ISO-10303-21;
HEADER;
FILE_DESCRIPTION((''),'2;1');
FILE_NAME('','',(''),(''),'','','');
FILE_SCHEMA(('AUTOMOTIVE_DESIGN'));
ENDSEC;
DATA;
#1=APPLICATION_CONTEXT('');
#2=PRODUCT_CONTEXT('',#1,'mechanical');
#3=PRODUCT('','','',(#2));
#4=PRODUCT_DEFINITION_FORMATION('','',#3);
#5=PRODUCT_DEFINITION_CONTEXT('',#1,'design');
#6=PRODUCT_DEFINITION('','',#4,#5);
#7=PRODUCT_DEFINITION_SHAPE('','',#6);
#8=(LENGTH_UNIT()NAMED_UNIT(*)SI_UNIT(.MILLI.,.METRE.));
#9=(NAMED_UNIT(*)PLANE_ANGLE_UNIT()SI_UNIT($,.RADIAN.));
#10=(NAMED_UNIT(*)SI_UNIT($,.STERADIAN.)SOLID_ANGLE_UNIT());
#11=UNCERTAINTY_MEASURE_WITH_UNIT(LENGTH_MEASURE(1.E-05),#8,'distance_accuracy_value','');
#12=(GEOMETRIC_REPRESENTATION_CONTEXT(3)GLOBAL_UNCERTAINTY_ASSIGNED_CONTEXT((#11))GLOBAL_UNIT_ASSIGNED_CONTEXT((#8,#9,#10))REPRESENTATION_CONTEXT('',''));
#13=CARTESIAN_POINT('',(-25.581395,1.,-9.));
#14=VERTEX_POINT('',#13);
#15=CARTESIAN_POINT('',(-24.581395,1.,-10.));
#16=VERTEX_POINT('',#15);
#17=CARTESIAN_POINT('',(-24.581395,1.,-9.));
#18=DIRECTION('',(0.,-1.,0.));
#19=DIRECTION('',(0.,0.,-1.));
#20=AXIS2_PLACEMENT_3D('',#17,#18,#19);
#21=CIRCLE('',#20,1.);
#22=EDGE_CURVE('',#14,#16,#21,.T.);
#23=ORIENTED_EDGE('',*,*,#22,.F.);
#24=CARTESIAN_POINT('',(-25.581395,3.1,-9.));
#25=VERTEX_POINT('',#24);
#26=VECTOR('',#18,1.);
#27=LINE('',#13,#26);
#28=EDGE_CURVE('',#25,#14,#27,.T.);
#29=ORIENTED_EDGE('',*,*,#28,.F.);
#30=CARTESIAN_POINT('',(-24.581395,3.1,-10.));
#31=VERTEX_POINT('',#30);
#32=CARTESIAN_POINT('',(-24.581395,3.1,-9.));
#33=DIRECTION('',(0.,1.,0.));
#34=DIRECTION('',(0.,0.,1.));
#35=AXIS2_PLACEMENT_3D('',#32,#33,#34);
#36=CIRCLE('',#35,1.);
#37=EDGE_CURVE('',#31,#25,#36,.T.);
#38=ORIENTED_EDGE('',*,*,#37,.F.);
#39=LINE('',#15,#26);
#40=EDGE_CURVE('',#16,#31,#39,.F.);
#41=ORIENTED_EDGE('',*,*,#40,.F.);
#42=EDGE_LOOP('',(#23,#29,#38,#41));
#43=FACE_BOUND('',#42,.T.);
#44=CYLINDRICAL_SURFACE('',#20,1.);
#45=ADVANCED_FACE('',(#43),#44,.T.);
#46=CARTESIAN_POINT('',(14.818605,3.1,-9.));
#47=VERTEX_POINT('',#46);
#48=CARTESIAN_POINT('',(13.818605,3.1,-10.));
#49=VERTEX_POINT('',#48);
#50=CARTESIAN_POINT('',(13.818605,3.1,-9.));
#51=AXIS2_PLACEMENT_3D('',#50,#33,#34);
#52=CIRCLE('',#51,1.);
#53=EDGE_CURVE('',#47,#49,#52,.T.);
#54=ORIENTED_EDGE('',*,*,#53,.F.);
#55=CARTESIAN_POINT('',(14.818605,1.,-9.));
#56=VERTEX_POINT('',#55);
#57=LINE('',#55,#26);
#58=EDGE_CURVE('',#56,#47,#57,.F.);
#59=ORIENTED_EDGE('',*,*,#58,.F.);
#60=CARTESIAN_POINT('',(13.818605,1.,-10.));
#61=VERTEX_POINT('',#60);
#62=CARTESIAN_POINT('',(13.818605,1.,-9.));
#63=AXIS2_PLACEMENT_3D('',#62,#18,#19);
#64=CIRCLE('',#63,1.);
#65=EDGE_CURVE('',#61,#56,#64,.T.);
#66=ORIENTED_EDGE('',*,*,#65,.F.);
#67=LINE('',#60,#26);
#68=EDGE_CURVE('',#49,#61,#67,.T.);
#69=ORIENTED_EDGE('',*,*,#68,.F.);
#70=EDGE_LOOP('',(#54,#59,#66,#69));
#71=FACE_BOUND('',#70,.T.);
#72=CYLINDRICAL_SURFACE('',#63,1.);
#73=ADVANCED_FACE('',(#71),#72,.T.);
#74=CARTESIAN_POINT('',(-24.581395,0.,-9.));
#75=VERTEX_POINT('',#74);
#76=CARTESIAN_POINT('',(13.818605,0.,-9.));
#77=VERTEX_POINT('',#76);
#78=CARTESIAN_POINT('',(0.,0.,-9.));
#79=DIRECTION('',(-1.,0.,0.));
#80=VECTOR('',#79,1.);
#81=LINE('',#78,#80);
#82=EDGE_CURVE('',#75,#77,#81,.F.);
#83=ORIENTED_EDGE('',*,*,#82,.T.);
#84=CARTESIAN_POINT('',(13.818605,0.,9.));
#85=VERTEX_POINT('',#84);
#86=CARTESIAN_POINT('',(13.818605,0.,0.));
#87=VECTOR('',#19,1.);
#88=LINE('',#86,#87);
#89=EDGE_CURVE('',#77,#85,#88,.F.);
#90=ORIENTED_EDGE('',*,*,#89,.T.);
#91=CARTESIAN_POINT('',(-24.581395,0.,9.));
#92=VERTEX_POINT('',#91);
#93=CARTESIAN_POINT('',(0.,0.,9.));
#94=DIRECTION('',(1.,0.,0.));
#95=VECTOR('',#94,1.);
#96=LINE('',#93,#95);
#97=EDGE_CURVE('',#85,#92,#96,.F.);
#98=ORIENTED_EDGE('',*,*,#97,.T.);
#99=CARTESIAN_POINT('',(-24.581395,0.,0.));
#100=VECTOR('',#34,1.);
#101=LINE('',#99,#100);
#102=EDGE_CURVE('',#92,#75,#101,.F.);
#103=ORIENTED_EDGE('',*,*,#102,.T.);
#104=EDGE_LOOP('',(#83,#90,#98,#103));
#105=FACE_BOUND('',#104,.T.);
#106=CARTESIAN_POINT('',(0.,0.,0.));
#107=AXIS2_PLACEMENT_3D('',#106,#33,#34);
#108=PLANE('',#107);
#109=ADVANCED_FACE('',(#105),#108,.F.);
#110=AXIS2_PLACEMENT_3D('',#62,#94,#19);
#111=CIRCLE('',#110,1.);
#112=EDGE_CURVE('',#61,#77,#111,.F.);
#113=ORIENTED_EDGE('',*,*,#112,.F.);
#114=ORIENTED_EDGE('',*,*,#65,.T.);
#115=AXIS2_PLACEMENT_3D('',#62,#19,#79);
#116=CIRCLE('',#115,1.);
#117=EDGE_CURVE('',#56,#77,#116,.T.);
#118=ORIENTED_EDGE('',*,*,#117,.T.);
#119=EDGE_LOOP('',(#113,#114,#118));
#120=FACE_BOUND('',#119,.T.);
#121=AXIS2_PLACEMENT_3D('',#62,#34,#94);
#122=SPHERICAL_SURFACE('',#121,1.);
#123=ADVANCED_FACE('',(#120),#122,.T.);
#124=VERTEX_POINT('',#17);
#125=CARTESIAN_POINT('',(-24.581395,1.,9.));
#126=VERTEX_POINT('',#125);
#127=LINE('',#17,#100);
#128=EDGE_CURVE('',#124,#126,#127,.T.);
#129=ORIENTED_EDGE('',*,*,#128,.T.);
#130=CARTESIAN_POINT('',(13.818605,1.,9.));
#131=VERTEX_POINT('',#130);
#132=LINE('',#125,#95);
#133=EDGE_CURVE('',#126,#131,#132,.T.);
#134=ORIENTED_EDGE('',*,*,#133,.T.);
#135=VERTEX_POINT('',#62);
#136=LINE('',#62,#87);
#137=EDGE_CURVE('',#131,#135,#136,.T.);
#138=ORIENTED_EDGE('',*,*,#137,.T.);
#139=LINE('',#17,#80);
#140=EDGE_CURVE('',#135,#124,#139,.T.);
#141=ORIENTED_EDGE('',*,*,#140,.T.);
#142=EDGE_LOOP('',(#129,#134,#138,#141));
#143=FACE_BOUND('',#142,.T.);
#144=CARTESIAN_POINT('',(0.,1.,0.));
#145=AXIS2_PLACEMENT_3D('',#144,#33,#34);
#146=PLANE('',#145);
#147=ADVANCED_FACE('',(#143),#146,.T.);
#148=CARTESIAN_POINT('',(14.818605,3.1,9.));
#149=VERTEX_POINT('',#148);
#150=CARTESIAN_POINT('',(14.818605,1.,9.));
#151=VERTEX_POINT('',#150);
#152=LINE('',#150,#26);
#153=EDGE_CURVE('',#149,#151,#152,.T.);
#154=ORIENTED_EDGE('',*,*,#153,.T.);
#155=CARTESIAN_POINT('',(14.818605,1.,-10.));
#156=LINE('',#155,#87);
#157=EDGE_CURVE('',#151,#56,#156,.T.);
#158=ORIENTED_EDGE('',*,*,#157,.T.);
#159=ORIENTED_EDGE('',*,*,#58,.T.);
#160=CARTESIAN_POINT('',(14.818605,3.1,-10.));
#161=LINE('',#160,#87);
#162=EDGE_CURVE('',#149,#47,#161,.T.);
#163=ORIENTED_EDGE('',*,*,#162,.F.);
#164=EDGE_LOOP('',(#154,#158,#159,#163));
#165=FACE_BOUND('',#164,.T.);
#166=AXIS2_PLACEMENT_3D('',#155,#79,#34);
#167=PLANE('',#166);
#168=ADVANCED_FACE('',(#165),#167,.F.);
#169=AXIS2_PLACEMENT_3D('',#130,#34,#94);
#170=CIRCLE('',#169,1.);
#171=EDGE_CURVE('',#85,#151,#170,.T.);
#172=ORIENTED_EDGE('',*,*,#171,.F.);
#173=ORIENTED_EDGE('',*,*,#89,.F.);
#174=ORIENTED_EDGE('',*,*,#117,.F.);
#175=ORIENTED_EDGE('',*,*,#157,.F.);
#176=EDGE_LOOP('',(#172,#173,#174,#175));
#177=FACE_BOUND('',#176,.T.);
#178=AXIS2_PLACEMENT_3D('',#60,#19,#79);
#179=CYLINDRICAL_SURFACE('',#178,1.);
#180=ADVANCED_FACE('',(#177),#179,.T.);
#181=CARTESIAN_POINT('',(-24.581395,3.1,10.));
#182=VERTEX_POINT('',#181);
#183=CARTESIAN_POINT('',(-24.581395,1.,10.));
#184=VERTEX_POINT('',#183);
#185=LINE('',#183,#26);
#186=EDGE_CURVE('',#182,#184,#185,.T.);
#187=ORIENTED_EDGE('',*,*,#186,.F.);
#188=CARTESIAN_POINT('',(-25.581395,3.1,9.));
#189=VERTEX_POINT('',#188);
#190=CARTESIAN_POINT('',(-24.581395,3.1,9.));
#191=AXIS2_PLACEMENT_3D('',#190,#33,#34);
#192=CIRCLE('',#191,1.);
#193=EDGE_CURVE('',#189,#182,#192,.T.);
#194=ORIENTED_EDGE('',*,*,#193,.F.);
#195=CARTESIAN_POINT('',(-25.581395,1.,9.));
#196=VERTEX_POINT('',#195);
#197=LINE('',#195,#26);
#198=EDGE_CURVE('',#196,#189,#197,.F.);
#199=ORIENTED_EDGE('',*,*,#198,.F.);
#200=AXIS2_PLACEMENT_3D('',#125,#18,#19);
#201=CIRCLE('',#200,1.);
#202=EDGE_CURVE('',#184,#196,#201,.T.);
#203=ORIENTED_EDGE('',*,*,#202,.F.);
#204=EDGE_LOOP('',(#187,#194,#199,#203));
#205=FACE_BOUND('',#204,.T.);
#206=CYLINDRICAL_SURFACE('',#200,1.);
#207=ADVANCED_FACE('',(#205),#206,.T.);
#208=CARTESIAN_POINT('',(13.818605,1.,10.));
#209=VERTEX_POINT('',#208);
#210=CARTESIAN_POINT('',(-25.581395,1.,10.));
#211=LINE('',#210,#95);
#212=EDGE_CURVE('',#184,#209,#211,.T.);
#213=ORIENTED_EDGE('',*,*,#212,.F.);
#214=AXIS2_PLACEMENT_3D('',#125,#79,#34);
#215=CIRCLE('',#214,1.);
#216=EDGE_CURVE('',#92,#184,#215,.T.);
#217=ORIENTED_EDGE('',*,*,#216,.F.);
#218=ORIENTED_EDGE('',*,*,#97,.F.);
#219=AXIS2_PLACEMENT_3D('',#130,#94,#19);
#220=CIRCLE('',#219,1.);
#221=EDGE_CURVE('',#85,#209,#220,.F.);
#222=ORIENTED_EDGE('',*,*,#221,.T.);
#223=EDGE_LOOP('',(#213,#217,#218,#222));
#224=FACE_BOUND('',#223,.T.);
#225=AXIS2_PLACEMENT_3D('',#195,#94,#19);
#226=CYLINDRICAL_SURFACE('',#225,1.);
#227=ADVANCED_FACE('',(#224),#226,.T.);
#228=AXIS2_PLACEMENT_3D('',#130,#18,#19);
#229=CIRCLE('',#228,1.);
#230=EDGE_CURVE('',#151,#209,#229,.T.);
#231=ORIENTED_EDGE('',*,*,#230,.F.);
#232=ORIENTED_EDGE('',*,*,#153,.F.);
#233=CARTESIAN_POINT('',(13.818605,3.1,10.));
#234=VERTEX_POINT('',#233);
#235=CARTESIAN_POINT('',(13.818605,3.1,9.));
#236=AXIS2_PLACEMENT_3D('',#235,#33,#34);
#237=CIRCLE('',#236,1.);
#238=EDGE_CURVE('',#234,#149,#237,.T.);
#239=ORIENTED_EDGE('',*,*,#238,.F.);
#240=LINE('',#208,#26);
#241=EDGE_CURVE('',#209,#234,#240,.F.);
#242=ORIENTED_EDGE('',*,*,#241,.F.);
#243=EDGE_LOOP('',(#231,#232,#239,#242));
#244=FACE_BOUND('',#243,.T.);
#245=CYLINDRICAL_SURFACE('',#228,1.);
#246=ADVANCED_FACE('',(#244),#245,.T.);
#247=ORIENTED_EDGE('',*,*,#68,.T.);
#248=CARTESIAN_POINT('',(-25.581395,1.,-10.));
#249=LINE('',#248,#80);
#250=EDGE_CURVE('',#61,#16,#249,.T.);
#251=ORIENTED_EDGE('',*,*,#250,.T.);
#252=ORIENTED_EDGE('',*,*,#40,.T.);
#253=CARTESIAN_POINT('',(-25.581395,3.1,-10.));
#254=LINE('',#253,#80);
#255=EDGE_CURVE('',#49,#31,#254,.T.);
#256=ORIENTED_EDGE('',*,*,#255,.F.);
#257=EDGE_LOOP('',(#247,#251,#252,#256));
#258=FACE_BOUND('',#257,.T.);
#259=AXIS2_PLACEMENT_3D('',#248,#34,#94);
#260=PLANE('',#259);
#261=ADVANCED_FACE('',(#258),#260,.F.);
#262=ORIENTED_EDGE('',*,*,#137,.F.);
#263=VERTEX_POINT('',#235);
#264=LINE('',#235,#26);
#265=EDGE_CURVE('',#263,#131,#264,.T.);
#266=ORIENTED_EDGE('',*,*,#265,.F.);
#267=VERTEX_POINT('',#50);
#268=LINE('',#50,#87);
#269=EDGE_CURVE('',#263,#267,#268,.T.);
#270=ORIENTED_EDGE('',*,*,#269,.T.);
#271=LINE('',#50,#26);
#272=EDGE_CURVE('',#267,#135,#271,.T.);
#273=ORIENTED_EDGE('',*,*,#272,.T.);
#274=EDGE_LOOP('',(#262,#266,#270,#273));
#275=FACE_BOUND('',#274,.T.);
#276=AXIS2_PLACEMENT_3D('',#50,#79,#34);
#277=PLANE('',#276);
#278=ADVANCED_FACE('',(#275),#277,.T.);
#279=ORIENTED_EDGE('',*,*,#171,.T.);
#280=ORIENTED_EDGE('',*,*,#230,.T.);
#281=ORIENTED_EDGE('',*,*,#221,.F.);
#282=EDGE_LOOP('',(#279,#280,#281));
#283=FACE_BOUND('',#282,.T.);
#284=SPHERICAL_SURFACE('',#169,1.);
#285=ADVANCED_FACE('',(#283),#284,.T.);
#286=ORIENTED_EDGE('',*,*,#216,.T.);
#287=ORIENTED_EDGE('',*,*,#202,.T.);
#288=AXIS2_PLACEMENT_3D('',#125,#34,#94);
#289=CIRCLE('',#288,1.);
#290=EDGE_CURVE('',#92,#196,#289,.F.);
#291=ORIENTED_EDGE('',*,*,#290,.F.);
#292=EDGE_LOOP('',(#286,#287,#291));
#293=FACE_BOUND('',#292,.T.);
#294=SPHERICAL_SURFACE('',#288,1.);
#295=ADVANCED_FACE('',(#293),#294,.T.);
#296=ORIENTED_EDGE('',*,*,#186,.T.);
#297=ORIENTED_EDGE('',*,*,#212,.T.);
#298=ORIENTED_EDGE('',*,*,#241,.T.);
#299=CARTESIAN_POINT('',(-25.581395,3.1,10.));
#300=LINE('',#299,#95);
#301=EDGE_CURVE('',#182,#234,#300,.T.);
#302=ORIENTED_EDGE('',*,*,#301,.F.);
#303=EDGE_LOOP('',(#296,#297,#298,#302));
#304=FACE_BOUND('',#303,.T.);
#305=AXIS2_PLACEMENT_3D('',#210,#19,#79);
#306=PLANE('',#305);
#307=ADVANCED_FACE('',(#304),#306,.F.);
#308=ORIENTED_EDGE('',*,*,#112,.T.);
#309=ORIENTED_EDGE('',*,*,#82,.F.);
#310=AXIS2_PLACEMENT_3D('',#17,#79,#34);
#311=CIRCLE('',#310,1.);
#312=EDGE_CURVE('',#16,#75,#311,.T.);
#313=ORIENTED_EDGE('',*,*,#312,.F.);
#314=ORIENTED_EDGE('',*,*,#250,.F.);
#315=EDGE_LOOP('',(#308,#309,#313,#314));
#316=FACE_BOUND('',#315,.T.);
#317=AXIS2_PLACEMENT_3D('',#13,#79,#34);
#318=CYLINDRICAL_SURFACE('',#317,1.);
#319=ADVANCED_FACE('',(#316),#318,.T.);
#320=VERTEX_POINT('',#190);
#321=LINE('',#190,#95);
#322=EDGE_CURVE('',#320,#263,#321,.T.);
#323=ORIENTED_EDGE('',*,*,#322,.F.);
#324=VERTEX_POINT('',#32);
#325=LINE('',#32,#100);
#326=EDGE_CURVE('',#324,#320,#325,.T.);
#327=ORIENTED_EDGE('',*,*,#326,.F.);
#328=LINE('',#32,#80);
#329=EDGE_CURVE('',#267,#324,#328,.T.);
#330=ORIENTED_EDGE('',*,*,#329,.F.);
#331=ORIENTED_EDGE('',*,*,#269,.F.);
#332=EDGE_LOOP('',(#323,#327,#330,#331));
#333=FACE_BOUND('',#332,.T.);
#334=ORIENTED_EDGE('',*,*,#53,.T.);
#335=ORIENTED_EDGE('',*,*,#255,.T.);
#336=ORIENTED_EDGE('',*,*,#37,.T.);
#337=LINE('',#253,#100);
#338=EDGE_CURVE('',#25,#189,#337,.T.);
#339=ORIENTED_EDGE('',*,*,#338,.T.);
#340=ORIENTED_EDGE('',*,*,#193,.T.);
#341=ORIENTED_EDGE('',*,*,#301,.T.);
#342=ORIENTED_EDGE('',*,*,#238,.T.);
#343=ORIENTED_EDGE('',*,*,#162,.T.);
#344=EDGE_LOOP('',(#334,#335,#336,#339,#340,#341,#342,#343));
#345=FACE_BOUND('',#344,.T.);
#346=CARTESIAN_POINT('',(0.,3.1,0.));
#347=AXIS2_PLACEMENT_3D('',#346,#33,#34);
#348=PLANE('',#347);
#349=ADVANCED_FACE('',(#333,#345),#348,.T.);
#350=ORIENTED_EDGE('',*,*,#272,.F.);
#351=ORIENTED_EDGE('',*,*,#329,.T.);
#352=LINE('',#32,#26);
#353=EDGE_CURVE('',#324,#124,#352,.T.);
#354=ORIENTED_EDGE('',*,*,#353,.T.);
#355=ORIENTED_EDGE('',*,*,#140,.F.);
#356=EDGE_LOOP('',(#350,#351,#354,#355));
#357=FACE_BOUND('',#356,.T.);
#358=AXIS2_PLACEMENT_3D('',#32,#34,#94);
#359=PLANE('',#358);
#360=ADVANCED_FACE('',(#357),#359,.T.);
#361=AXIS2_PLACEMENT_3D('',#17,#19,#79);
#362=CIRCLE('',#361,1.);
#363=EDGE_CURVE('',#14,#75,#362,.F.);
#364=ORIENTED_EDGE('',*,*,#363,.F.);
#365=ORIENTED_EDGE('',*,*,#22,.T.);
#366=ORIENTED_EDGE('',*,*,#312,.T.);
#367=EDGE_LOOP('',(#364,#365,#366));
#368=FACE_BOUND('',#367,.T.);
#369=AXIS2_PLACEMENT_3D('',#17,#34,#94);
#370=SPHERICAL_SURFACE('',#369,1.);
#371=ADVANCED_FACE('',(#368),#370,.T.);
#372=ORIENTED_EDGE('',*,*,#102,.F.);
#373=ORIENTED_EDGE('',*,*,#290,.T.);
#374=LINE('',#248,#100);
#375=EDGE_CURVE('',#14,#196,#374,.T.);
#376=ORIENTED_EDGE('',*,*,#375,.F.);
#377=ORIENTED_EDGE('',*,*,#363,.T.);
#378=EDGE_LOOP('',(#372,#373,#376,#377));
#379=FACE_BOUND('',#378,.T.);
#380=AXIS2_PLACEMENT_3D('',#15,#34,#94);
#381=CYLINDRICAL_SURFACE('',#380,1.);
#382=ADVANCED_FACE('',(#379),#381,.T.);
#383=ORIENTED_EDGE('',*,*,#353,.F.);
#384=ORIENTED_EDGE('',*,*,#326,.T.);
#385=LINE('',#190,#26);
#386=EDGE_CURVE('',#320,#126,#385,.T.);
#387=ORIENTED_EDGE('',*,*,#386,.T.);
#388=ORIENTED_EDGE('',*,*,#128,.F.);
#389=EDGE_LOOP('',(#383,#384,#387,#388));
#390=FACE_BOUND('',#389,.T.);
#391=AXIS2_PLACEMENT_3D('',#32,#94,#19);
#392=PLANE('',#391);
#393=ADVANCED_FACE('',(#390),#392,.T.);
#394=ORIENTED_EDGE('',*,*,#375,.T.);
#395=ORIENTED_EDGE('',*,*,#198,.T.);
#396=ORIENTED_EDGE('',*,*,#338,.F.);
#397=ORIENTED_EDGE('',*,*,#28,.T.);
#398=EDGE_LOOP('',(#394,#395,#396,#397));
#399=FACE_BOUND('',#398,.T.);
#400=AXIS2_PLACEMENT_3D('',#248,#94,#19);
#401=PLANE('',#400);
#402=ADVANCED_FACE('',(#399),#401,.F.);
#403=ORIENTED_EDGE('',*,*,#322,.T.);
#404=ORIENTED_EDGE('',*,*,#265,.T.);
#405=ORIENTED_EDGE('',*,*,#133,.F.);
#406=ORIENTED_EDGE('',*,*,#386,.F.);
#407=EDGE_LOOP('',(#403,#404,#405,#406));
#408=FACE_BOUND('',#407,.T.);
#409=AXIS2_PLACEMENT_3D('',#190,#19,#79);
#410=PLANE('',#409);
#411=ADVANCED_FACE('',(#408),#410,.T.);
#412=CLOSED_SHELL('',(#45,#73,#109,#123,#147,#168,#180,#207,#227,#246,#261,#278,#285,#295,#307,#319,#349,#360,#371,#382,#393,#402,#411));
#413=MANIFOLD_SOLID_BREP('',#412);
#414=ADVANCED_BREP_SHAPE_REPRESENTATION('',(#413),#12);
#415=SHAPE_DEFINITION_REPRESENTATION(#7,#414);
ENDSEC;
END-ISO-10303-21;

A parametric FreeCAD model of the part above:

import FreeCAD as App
import Part
import Sketcher

V = App.Vector
Q = App.Units.Quantity


def edges_at(feature, points):
    """Names of the edges that pass closest to the given points."""
    edges = feature.Shape.Edges
    near = lambda p: min(range(len(edges)), key=lambda i: edges[i].distToShape(Part.Vertex(*p))[0])
    return sorted({f"Edge{near(p) + 1}" for p in points})

doc = App.newDocument("Part")
params = doc.addObject("Spreadsheet::Sheet", "Params")
for row, (alias, value) in enumerate([
    ("sketch1_height", "20 mm"),
    ("sketch1_width", "40.4 mm"),
    ("pad1_length", "1 mm"),
    ("sketch2_height", "20 mm"),
    ("sketch2_height2", "18 mm"),
    ("sketch2_width", "40.4 mm"),
    ("sketch2_width2", "38.4 mm"),
    ("pad2_length", "2.1 mm"),
    ("fillet_radius", "1 mm"),
], start=1):
    params.set(f"A{row}", alias)
    params.set(f"B{row}", "=" + value)
    params.setAlias(f"B{row}", alias)

body = doc.addObject("PartDesign::Body", "Body")

# Sketch on XZ plane
sketch1 = doc.addObject("Sketcher::SketchObject", "Sketch")
body.addObject(sketch1)
sketch1.AttachmentSupport = (doc.XZ_Plane, [""])
sketch1.MapMode = "FlatFace"
sketch1.addGeometry([
    Part.LineSegment(V(-26, -10, 0), V(-26, 10, 0)),
    Part.LineSegment(V(-26, 10, 0), V(15, 10, 0)),
    Part.LineSegment(V(15, 10, 0), V(15, -10, 0)),
    Part.LineSegment(V(15, -10, 0), V(-26, -10, 0)),
], False)
sketch1.addConstraint([
    Sketcher.Constraint("Coincident", 0, 2, 1, 1),
    Sketcher.Constraint("Coincident", 1, 2, 2, 1),
    Sketcher.Constraint("Coincident", 2, 2, 3, 1),
    Sketcher.Constraint("Coincident", 3, 2, 0, 1),
    Sketcher.Constraint("Vertical", 0),
    Sketcher.Constraint("Horizontal", 1),
    Sketcher.Constraint("Vertical", 2),
    Sketcher.Constraint("Horizontal", 3),
    Sketcher.Constraint("DistanceY", 0, 1, 0, 2, Q("20 mm")),
    Sketcher.Constraint("DistanceX", 1, 1, 1, 2, Q("40.4 mm")),
    Sketcher.Constraint("DistanceY", -1, 1, 0, 2, Q("10 mm")),
    Sketcher.Constraint("DistanceX", 0, 2, -1, 1, Q("25.581395 mm")),
])
sketch1.setExpression("Constraints[8]", "Params.sketch1_height")
sketch1.setExpression("Constraints[9]", "Params.sketch1_width")
pad1 = doc.addObject("PartDesign::Pad", "Pad")
body.addObject(pad1)
pad1.Profile = sketch1
pad1.setExpression("Length", "Params.pad1_length")
pad1.Reversed = True

# Sketch on XZ plane
sketch2 = doc.addObject("Sketcher::SketchObject", "Sketch001")
body.addObject(sketch2)
sketch2.AttachmentSupport = (doc.XZ_Plane, [""])
sketch2.MapMode = "FlatFace"
sketch2.AttachmentOffset = App.Placement(V(0, 0, -1), App.Rotation())
sketch2.addGeometry([
    Part.LineSegment(V(-26, -10, 0), V(-26, 10, 0)),  # 0
    Part.LineSegment(V(-26, 10, 0), V(15, 10, 0)),  # 1
    Part.LineSegment(V(15, 10, 0), V(15, -10, 0)),  # 2
    Part.LineSegment(V(15, -10, 0), V(-26, -10, 0)),  # 3
    Part.LineSegment(V(14, 9, 0), V(-25, 9, 0)),  # 4
    Part.LineSegment(V(-25, 9, 0), V(-25, -9, 0)),  # 5
    Part.LineSegment(V(-25, -9, 0), V(14, -9, 0)),  # 6
    Part.LineSegment(V(14, -9, 0), V(14, 9, 0)),  # 7
], False)
sketch2.addConstraint([
    Sketcher.Constraint("Coincident", 0, 2, 1, 1),
    Sketcher.Constraint("Coincident", 1, 2, 2, 1),
    Sketcher.Constraint("Coincident", 2, 2, 3, 1),
    Sketcher.Constraint("Coincident", 3, 2, 0, 1),
    Sketcher.Constraint("Coincident", 4, 2, 5, 1),
    Sketcher.Constraint("Coincident", 5, 2, 6, 1),
    Sketcher.Constraint("Coincident", 6, 2, 7, 1),
    Sketcher.Constraint("Coincident", 7, 2, 4, 1),
    Sketcher.Constraint("Vertical", 0),
    Sketcher.Constraint("Horizontal", 1),
    Sketcher.Constraint("Vertical", 2),
    Sketcher.Constraint("Horizontal", 3),
    Sketcher.Constraint("Horizontal", 4),
    Sketcher.Constraint("Vertical", 5),
    Sketcher.Constraint("Horizontal", 6),
    Sketcher.Constraint("Vertical", 7),
    Sketcher.Constraint("DistanceY", 0, 1, 0, 2, Q("20 mm")),
    Sketcher.Constraint("DistanceY", 5, 2, 5, 1, Q("18 mm")),
    Sketcher.Constraint("DistanceX", 1, 1, 1, 2, Q("40.4 mm")),
    Sketcher.Constraint("DistanceX", 4, 2, 4, 1, Q("38.4 mm")),
    Sketcher.Constraint("DistanceY", -1, 1, 0, 2, Q("10 mm")),
    Sketcher.Constraint("DistanceY", -1, 1, 4, 2, Q("9 mm")),
    Sketcher.Constraint("DistanceX", 0, 2, 4, 2, Q("1 mm")),
    Sketcher.Constraint("DistanceX", 0, 2, -1, 1, Q("25.581395 mm")),
])
sketch2.setExpression("Constraints[16]", "Params.sketch2_height")
sketch2.setExpression("Constraints[17]", "Params.sketch2_height2")
sketch2.setExpression("Constraints[18]", "Params.sketch2_width")
sketch2.setExpression("Constraints[19]", "Params.sketch2_width2")
pad2 = doc.addObject("PartDesign::Pad", "Pad001")
body.addObject(pad2)
pad2.Profile = sketch2
pad2.setExpression("Length", "Params.pad2_length")
pad2.Reversed = True
doc.recompute()

fillet = doc.addObject("PartDesign::Fillet", "Fillet")
body.addObject(fillet)
fillet.Base = (pad2, edges_at(pad2, [
    (-5.381, 0, -10),
    (14.819, 0, 0),
    (-5.381, 0, 10),
    (-25.581, 0, 0),
    (-25.581, 1.55, -10),
    (14.819, 1.55, -10),
    (14.819, 1.55, 10),
    (-25.581, 1.55, 10),
]))
fillet.setExpression("Radius", "Params.fillet_radius")

doc.recompute()
